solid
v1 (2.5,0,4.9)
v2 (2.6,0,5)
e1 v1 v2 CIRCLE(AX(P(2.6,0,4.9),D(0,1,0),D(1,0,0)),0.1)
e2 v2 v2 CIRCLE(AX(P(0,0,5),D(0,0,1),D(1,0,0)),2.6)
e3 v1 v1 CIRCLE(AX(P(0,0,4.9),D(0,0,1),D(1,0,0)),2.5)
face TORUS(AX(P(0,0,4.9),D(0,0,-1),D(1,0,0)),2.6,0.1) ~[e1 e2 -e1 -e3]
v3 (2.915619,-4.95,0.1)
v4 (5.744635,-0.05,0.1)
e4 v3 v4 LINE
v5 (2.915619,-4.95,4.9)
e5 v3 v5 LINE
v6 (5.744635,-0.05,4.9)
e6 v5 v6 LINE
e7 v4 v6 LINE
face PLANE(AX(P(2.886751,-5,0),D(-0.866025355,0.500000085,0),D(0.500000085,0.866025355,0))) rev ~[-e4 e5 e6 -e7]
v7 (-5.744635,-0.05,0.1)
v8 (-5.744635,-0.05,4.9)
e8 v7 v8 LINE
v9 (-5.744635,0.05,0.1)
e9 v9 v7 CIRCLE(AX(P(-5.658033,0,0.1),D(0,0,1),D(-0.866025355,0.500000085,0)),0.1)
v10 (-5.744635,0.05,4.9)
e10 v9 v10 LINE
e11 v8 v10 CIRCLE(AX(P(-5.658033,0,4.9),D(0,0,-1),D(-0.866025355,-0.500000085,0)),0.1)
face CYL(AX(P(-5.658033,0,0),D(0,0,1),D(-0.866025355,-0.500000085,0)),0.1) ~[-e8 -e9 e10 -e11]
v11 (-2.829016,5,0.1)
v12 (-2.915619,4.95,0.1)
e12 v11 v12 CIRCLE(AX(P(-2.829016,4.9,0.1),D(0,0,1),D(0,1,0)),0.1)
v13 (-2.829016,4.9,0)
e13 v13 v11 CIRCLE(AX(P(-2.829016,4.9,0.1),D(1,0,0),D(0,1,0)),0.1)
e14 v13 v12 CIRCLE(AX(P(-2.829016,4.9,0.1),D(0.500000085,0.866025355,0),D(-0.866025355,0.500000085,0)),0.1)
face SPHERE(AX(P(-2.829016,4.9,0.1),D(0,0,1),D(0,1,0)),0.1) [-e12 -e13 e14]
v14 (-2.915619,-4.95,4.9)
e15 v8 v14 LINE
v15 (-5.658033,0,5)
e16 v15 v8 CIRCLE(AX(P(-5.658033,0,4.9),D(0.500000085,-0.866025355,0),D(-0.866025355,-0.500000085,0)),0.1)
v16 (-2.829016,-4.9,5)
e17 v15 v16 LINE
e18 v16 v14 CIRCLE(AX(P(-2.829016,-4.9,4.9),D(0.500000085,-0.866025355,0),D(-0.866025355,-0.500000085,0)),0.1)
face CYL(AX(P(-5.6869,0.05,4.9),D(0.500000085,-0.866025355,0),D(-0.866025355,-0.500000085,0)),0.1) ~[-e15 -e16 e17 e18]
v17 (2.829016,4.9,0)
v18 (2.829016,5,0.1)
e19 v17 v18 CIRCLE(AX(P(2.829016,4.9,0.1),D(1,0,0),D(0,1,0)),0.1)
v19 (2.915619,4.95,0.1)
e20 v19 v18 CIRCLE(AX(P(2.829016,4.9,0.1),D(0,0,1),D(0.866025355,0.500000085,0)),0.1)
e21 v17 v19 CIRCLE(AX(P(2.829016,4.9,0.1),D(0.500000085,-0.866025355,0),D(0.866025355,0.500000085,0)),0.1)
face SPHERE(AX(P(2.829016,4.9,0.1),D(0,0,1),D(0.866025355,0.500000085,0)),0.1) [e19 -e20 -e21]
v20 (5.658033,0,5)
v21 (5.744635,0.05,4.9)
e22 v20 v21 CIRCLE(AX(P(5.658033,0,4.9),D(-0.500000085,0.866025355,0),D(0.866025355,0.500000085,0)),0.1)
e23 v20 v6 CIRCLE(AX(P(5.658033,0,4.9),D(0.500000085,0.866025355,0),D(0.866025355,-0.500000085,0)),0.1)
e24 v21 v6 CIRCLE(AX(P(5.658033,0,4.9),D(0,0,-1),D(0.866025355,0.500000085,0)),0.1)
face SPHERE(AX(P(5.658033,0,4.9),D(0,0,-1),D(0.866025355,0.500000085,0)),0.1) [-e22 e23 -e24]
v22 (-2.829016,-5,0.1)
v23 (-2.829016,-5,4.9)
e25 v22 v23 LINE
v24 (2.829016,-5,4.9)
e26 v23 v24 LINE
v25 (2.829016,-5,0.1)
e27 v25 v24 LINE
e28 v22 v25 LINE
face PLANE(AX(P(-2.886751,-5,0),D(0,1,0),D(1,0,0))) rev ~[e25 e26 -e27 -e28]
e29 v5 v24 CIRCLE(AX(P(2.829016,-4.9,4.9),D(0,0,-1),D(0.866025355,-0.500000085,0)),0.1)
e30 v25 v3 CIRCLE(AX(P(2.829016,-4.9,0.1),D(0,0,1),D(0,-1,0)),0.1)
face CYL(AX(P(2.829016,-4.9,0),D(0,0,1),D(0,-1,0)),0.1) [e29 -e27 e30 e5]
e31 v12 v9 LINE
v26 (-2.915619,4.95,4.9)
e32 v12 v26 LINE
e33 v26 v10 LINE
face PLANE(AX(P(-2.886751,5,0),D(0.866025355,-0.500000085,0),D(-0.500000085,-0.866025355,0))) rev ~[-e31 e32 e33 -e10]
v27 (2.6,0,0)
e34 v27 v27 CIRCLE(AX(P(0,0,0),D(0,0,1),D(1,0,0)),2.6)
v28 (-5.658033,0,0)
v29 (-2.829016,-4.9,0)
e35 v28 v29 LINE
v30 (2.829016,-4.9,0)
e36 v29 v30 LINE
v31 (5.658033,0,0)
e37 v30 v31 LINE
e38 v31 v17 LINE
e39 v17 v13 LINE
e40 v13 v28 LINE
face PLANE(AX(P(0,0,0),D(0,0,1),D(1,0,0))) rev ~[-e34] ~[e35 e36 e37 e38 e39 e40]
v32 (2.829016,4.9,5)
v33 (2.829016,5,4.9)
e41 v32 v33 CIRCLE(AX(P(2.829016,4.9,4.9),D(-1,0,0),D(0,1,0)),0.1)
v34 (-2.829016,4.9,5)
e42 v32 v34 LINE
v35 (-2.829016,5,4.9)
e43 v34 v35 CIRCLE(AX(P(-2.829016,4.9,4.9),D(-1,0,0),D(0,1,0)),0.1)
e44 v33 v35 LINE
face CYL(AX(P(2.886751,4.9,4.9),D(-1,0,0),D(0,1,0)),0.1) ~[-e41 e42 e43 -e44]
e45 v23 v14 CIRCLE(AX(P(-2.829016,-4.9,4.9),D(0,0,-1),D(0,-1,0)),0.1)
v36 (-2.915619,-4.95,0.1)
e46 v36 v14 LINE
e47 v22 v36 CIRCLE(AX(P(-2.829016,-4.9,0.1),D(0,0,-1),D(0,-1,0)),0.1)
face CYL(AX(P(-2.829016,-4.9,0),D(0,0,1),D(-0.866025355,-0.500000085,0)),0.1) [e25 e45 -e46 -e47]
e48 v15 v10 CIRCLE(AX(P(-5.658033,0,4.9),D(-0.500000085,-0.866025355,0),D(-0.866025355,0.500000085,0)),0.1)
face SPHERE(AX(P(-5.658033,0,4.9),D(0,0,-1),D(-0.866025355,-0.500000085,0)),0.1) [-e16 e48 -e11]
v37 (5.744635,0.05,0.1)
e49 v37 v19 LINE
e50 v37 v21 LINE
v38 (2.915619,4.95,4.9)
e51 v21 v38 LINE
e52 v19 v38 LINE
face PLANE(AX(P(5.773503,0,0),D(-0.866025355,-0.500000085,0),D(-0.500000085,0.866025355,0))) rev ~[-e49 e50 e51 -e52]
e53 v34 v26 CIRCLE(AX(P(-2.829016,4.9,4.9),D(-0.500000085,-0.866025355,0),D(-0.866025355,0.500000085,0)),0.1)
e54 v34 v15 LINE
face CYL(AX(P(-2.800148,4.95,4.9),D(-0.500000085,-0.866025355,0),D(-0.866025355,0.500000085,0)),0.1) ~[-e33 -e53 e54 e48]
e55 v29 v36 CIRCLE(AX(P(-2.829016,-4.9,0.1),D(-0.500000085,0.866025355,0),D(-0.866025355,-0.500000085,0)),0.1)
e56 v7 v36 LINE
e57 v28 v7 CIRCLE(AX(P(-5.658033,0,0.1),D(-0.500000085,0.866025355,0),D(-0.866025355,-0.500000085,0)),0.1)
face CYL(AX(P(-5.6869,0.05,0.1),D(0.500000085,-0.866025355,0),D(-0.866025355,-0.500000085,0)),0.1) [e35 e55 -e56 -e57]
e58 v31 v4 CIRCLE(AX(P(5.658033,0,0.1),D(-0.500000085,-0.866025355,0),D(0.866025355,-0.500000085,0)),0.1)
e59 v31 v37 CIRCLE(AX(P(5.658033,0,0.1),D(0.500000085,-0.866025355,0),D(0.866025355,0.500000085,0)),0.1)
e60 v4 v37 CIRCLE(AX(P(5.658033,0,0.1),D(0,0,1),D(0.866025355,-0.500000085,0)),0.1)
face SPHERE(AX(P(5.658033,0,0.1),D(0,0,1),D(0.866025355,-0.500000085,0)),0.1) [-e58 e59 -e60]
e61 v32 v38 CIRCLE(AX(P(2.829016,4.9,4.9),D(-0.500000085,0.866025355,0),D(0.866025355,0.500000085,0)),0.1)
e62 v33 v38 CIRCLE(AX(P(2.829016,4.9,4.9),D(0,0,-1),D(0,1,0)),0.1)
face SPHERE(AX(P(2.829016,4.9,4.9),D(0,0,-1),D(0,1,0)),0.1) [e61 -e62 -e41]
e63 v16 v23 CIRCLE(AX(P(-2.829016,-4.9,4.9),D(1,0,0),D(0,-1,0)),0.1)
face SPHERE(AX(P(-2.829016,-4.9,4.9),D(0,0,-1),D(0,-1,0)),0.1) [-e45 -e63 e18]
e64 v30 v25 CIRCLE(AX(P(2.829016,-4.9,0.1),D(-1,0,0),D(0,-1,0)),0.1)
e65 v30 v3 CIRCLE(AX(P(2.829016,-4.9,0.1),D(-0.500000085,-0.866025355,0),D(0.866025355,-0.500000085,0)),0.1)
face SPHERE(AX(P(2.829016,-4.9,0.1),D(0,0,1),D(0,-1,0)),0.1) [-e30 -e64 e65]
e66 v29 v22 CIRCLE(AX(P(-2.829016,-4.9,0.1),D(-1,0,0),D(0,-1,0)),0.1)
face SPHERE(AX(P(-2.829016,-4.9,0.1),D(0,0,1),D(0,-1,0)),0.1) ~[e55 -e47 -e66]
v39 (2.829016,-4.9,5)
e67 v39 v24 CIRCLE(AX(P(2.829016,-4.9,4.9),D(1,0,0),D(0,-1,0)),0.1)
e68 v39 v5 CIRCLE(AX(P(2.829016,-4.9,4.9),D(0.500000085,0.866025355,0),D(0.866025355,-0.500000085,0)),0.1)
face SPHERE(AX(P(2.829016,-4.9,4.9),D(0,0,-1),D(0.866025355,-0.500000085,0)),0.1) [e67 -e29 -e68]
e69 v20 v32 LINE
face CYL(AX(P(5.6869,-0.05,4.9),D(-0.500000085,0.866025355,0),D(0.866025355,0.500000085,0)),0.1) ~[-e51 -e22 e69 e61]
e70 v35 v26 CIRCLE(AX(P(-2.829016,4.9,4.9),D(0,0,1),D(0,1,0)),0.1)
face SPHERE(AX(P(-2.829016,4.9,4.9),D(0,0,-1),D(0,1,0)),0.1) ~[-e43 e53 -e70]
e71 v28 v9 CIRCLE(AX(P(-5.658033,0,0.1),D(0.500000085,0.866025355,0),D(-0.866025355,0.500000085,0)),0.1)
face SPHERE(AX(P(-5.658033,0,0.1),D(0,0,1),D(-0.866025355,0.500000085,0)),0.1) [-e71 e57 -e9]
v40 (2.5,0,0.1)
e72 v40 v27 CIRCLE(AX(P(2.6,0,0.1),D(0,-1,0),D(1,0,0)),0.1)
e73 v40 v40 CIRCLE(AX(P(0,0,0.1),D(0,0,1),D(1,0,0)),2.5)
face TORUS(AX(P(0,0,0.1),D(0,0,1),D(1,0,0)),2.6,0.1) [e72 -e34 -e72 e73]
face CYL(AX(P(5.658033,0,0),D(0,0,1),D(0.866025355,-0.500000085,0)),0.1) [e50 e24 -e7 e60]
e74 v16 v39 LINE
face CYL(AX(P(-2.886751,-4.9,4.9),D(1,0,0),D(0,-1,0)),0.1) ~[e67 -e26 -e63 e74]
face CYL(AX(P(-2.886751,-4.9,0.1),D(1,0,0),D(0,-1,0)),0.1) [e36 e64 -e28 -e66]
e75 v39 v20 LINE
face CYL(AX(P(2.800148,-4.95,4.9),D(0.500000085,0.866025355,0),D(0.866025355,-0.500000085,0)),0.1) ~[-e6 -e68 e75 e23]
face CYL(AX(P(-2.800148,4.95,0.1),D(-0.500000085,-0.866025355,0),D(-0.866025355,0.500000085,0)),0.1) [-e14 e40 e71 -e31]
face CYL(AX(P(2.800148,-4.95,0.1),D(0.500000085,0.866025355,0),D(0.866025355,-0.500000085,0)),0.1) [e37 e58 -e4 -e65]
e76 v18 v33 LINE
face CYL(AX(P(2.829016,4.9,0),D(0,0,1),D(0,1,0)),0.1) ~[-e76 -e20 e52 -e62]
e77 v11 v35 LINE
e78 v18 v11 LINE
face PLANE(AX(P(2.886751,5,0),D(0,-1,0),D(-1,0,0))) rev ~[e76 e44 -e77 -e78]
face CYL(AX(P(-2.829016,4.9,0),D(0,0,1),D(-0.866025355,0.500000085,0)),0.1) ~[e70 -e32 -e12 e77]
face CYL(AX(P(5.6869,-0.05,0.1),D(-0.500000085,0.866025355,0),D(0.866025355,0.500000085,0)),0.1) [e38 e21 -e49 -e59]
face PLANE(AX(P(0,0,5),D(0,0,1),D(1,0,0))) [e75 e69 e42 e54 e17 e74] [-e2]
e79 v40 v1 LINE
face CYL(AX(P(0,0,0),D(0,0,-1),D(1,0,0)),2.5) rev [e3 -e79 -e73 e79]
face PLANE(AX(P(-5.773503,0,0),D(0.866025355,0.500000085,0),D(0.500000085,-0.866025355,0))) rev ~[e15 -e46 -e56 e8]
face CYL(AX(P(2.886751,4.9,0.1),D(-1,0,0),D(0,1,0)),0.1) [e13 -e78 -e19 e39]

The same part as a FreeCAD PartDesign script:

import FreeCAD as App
import Part
import Sketcher
Q = App.Units.Quantity


def add_polygon(sketch, points):
    """Adds a closed chain of lines whose ends are joined by coincident constraints."""
    first, n = sketch.GeometryCount, len(points)
    for a, b in zip(points, points[1:] + points[:1]):
        sketch.addGeometry(Part.LineSegment(App.Vector(*a, 0), App.Vector(*b, 0)), False)
    for i in range(n):
        sketch.addConstraint(Sketcher.Constraint("Coincident", first + i, 2, first + (i + 1) % n, 1))

doc = App.newDocument("Part")
body = doc.addObject("PartDesign::Body", "Body")

# Sketch on XY plane
sketch1 = body.newObject("Sketcher::SketchObject", "Sketch")
sketch1.AttachmentSupport = (doc.getObject("XY_Plane"), [""])
sketch1.MapMode = "FlatFace"
add_polygon(sketch1, [(-5.8, 0), (-2.9, -5), (2.9, -5), (5.8, 0), (2.9, 5), (-2.9, 5)])  # lines 0-5
sketch1.addGeometry(Part.Circle(App.Vector(0, 0, 0), App.Vector(0, 0, 1), 2.5), False)  # 6
sketch1.addConstraint([
    Sketcher.Constraint("Horizontal", 1),
    Sketcher.Constraint("Horizontal", 4),
    Sketcher.Constraint("Coincident", 6, 3, -1, 1),
    Sketcher.Constraint("Symmetric", 0, 2, 3, 2, -1, 1),
    Sketcher.Constraint("Symmetric", 2, 2, 5, 2, -1, 1),
    Sketcher.Constraint("PointOnObject", 2, 2, -1),
    Sketcher.Constraint("Parallel", 2, 5),
    Sketcher.Constraint("Vertical", 1, 2, 3, 2),
    Sketcher.Constraint("Diameter", 6, 5.0),
    Sketcher.Constraint("Angle", 0, Q("-59.999994 deg")),
    Sketcher.Constraint("DistanceY", 0, 2, -1, 1, 5.0),
    Sketcher.Constraint("DistanceX", 1, 1, 1, 2, 5.773502),
])
pad1 = body.newObject("PartDesign::Pad", "Pad")
pad1.Profile = sketch1
pad1.Length = 5
doc.recompute()

fillet = body.newObject("PartDesign::Fillet", "Fillet")
fillet.Base = (pad1, ["Edge1"])
fillet.UseAllEdges = True
fillet.Radius = 0.1

doc.recompute()
